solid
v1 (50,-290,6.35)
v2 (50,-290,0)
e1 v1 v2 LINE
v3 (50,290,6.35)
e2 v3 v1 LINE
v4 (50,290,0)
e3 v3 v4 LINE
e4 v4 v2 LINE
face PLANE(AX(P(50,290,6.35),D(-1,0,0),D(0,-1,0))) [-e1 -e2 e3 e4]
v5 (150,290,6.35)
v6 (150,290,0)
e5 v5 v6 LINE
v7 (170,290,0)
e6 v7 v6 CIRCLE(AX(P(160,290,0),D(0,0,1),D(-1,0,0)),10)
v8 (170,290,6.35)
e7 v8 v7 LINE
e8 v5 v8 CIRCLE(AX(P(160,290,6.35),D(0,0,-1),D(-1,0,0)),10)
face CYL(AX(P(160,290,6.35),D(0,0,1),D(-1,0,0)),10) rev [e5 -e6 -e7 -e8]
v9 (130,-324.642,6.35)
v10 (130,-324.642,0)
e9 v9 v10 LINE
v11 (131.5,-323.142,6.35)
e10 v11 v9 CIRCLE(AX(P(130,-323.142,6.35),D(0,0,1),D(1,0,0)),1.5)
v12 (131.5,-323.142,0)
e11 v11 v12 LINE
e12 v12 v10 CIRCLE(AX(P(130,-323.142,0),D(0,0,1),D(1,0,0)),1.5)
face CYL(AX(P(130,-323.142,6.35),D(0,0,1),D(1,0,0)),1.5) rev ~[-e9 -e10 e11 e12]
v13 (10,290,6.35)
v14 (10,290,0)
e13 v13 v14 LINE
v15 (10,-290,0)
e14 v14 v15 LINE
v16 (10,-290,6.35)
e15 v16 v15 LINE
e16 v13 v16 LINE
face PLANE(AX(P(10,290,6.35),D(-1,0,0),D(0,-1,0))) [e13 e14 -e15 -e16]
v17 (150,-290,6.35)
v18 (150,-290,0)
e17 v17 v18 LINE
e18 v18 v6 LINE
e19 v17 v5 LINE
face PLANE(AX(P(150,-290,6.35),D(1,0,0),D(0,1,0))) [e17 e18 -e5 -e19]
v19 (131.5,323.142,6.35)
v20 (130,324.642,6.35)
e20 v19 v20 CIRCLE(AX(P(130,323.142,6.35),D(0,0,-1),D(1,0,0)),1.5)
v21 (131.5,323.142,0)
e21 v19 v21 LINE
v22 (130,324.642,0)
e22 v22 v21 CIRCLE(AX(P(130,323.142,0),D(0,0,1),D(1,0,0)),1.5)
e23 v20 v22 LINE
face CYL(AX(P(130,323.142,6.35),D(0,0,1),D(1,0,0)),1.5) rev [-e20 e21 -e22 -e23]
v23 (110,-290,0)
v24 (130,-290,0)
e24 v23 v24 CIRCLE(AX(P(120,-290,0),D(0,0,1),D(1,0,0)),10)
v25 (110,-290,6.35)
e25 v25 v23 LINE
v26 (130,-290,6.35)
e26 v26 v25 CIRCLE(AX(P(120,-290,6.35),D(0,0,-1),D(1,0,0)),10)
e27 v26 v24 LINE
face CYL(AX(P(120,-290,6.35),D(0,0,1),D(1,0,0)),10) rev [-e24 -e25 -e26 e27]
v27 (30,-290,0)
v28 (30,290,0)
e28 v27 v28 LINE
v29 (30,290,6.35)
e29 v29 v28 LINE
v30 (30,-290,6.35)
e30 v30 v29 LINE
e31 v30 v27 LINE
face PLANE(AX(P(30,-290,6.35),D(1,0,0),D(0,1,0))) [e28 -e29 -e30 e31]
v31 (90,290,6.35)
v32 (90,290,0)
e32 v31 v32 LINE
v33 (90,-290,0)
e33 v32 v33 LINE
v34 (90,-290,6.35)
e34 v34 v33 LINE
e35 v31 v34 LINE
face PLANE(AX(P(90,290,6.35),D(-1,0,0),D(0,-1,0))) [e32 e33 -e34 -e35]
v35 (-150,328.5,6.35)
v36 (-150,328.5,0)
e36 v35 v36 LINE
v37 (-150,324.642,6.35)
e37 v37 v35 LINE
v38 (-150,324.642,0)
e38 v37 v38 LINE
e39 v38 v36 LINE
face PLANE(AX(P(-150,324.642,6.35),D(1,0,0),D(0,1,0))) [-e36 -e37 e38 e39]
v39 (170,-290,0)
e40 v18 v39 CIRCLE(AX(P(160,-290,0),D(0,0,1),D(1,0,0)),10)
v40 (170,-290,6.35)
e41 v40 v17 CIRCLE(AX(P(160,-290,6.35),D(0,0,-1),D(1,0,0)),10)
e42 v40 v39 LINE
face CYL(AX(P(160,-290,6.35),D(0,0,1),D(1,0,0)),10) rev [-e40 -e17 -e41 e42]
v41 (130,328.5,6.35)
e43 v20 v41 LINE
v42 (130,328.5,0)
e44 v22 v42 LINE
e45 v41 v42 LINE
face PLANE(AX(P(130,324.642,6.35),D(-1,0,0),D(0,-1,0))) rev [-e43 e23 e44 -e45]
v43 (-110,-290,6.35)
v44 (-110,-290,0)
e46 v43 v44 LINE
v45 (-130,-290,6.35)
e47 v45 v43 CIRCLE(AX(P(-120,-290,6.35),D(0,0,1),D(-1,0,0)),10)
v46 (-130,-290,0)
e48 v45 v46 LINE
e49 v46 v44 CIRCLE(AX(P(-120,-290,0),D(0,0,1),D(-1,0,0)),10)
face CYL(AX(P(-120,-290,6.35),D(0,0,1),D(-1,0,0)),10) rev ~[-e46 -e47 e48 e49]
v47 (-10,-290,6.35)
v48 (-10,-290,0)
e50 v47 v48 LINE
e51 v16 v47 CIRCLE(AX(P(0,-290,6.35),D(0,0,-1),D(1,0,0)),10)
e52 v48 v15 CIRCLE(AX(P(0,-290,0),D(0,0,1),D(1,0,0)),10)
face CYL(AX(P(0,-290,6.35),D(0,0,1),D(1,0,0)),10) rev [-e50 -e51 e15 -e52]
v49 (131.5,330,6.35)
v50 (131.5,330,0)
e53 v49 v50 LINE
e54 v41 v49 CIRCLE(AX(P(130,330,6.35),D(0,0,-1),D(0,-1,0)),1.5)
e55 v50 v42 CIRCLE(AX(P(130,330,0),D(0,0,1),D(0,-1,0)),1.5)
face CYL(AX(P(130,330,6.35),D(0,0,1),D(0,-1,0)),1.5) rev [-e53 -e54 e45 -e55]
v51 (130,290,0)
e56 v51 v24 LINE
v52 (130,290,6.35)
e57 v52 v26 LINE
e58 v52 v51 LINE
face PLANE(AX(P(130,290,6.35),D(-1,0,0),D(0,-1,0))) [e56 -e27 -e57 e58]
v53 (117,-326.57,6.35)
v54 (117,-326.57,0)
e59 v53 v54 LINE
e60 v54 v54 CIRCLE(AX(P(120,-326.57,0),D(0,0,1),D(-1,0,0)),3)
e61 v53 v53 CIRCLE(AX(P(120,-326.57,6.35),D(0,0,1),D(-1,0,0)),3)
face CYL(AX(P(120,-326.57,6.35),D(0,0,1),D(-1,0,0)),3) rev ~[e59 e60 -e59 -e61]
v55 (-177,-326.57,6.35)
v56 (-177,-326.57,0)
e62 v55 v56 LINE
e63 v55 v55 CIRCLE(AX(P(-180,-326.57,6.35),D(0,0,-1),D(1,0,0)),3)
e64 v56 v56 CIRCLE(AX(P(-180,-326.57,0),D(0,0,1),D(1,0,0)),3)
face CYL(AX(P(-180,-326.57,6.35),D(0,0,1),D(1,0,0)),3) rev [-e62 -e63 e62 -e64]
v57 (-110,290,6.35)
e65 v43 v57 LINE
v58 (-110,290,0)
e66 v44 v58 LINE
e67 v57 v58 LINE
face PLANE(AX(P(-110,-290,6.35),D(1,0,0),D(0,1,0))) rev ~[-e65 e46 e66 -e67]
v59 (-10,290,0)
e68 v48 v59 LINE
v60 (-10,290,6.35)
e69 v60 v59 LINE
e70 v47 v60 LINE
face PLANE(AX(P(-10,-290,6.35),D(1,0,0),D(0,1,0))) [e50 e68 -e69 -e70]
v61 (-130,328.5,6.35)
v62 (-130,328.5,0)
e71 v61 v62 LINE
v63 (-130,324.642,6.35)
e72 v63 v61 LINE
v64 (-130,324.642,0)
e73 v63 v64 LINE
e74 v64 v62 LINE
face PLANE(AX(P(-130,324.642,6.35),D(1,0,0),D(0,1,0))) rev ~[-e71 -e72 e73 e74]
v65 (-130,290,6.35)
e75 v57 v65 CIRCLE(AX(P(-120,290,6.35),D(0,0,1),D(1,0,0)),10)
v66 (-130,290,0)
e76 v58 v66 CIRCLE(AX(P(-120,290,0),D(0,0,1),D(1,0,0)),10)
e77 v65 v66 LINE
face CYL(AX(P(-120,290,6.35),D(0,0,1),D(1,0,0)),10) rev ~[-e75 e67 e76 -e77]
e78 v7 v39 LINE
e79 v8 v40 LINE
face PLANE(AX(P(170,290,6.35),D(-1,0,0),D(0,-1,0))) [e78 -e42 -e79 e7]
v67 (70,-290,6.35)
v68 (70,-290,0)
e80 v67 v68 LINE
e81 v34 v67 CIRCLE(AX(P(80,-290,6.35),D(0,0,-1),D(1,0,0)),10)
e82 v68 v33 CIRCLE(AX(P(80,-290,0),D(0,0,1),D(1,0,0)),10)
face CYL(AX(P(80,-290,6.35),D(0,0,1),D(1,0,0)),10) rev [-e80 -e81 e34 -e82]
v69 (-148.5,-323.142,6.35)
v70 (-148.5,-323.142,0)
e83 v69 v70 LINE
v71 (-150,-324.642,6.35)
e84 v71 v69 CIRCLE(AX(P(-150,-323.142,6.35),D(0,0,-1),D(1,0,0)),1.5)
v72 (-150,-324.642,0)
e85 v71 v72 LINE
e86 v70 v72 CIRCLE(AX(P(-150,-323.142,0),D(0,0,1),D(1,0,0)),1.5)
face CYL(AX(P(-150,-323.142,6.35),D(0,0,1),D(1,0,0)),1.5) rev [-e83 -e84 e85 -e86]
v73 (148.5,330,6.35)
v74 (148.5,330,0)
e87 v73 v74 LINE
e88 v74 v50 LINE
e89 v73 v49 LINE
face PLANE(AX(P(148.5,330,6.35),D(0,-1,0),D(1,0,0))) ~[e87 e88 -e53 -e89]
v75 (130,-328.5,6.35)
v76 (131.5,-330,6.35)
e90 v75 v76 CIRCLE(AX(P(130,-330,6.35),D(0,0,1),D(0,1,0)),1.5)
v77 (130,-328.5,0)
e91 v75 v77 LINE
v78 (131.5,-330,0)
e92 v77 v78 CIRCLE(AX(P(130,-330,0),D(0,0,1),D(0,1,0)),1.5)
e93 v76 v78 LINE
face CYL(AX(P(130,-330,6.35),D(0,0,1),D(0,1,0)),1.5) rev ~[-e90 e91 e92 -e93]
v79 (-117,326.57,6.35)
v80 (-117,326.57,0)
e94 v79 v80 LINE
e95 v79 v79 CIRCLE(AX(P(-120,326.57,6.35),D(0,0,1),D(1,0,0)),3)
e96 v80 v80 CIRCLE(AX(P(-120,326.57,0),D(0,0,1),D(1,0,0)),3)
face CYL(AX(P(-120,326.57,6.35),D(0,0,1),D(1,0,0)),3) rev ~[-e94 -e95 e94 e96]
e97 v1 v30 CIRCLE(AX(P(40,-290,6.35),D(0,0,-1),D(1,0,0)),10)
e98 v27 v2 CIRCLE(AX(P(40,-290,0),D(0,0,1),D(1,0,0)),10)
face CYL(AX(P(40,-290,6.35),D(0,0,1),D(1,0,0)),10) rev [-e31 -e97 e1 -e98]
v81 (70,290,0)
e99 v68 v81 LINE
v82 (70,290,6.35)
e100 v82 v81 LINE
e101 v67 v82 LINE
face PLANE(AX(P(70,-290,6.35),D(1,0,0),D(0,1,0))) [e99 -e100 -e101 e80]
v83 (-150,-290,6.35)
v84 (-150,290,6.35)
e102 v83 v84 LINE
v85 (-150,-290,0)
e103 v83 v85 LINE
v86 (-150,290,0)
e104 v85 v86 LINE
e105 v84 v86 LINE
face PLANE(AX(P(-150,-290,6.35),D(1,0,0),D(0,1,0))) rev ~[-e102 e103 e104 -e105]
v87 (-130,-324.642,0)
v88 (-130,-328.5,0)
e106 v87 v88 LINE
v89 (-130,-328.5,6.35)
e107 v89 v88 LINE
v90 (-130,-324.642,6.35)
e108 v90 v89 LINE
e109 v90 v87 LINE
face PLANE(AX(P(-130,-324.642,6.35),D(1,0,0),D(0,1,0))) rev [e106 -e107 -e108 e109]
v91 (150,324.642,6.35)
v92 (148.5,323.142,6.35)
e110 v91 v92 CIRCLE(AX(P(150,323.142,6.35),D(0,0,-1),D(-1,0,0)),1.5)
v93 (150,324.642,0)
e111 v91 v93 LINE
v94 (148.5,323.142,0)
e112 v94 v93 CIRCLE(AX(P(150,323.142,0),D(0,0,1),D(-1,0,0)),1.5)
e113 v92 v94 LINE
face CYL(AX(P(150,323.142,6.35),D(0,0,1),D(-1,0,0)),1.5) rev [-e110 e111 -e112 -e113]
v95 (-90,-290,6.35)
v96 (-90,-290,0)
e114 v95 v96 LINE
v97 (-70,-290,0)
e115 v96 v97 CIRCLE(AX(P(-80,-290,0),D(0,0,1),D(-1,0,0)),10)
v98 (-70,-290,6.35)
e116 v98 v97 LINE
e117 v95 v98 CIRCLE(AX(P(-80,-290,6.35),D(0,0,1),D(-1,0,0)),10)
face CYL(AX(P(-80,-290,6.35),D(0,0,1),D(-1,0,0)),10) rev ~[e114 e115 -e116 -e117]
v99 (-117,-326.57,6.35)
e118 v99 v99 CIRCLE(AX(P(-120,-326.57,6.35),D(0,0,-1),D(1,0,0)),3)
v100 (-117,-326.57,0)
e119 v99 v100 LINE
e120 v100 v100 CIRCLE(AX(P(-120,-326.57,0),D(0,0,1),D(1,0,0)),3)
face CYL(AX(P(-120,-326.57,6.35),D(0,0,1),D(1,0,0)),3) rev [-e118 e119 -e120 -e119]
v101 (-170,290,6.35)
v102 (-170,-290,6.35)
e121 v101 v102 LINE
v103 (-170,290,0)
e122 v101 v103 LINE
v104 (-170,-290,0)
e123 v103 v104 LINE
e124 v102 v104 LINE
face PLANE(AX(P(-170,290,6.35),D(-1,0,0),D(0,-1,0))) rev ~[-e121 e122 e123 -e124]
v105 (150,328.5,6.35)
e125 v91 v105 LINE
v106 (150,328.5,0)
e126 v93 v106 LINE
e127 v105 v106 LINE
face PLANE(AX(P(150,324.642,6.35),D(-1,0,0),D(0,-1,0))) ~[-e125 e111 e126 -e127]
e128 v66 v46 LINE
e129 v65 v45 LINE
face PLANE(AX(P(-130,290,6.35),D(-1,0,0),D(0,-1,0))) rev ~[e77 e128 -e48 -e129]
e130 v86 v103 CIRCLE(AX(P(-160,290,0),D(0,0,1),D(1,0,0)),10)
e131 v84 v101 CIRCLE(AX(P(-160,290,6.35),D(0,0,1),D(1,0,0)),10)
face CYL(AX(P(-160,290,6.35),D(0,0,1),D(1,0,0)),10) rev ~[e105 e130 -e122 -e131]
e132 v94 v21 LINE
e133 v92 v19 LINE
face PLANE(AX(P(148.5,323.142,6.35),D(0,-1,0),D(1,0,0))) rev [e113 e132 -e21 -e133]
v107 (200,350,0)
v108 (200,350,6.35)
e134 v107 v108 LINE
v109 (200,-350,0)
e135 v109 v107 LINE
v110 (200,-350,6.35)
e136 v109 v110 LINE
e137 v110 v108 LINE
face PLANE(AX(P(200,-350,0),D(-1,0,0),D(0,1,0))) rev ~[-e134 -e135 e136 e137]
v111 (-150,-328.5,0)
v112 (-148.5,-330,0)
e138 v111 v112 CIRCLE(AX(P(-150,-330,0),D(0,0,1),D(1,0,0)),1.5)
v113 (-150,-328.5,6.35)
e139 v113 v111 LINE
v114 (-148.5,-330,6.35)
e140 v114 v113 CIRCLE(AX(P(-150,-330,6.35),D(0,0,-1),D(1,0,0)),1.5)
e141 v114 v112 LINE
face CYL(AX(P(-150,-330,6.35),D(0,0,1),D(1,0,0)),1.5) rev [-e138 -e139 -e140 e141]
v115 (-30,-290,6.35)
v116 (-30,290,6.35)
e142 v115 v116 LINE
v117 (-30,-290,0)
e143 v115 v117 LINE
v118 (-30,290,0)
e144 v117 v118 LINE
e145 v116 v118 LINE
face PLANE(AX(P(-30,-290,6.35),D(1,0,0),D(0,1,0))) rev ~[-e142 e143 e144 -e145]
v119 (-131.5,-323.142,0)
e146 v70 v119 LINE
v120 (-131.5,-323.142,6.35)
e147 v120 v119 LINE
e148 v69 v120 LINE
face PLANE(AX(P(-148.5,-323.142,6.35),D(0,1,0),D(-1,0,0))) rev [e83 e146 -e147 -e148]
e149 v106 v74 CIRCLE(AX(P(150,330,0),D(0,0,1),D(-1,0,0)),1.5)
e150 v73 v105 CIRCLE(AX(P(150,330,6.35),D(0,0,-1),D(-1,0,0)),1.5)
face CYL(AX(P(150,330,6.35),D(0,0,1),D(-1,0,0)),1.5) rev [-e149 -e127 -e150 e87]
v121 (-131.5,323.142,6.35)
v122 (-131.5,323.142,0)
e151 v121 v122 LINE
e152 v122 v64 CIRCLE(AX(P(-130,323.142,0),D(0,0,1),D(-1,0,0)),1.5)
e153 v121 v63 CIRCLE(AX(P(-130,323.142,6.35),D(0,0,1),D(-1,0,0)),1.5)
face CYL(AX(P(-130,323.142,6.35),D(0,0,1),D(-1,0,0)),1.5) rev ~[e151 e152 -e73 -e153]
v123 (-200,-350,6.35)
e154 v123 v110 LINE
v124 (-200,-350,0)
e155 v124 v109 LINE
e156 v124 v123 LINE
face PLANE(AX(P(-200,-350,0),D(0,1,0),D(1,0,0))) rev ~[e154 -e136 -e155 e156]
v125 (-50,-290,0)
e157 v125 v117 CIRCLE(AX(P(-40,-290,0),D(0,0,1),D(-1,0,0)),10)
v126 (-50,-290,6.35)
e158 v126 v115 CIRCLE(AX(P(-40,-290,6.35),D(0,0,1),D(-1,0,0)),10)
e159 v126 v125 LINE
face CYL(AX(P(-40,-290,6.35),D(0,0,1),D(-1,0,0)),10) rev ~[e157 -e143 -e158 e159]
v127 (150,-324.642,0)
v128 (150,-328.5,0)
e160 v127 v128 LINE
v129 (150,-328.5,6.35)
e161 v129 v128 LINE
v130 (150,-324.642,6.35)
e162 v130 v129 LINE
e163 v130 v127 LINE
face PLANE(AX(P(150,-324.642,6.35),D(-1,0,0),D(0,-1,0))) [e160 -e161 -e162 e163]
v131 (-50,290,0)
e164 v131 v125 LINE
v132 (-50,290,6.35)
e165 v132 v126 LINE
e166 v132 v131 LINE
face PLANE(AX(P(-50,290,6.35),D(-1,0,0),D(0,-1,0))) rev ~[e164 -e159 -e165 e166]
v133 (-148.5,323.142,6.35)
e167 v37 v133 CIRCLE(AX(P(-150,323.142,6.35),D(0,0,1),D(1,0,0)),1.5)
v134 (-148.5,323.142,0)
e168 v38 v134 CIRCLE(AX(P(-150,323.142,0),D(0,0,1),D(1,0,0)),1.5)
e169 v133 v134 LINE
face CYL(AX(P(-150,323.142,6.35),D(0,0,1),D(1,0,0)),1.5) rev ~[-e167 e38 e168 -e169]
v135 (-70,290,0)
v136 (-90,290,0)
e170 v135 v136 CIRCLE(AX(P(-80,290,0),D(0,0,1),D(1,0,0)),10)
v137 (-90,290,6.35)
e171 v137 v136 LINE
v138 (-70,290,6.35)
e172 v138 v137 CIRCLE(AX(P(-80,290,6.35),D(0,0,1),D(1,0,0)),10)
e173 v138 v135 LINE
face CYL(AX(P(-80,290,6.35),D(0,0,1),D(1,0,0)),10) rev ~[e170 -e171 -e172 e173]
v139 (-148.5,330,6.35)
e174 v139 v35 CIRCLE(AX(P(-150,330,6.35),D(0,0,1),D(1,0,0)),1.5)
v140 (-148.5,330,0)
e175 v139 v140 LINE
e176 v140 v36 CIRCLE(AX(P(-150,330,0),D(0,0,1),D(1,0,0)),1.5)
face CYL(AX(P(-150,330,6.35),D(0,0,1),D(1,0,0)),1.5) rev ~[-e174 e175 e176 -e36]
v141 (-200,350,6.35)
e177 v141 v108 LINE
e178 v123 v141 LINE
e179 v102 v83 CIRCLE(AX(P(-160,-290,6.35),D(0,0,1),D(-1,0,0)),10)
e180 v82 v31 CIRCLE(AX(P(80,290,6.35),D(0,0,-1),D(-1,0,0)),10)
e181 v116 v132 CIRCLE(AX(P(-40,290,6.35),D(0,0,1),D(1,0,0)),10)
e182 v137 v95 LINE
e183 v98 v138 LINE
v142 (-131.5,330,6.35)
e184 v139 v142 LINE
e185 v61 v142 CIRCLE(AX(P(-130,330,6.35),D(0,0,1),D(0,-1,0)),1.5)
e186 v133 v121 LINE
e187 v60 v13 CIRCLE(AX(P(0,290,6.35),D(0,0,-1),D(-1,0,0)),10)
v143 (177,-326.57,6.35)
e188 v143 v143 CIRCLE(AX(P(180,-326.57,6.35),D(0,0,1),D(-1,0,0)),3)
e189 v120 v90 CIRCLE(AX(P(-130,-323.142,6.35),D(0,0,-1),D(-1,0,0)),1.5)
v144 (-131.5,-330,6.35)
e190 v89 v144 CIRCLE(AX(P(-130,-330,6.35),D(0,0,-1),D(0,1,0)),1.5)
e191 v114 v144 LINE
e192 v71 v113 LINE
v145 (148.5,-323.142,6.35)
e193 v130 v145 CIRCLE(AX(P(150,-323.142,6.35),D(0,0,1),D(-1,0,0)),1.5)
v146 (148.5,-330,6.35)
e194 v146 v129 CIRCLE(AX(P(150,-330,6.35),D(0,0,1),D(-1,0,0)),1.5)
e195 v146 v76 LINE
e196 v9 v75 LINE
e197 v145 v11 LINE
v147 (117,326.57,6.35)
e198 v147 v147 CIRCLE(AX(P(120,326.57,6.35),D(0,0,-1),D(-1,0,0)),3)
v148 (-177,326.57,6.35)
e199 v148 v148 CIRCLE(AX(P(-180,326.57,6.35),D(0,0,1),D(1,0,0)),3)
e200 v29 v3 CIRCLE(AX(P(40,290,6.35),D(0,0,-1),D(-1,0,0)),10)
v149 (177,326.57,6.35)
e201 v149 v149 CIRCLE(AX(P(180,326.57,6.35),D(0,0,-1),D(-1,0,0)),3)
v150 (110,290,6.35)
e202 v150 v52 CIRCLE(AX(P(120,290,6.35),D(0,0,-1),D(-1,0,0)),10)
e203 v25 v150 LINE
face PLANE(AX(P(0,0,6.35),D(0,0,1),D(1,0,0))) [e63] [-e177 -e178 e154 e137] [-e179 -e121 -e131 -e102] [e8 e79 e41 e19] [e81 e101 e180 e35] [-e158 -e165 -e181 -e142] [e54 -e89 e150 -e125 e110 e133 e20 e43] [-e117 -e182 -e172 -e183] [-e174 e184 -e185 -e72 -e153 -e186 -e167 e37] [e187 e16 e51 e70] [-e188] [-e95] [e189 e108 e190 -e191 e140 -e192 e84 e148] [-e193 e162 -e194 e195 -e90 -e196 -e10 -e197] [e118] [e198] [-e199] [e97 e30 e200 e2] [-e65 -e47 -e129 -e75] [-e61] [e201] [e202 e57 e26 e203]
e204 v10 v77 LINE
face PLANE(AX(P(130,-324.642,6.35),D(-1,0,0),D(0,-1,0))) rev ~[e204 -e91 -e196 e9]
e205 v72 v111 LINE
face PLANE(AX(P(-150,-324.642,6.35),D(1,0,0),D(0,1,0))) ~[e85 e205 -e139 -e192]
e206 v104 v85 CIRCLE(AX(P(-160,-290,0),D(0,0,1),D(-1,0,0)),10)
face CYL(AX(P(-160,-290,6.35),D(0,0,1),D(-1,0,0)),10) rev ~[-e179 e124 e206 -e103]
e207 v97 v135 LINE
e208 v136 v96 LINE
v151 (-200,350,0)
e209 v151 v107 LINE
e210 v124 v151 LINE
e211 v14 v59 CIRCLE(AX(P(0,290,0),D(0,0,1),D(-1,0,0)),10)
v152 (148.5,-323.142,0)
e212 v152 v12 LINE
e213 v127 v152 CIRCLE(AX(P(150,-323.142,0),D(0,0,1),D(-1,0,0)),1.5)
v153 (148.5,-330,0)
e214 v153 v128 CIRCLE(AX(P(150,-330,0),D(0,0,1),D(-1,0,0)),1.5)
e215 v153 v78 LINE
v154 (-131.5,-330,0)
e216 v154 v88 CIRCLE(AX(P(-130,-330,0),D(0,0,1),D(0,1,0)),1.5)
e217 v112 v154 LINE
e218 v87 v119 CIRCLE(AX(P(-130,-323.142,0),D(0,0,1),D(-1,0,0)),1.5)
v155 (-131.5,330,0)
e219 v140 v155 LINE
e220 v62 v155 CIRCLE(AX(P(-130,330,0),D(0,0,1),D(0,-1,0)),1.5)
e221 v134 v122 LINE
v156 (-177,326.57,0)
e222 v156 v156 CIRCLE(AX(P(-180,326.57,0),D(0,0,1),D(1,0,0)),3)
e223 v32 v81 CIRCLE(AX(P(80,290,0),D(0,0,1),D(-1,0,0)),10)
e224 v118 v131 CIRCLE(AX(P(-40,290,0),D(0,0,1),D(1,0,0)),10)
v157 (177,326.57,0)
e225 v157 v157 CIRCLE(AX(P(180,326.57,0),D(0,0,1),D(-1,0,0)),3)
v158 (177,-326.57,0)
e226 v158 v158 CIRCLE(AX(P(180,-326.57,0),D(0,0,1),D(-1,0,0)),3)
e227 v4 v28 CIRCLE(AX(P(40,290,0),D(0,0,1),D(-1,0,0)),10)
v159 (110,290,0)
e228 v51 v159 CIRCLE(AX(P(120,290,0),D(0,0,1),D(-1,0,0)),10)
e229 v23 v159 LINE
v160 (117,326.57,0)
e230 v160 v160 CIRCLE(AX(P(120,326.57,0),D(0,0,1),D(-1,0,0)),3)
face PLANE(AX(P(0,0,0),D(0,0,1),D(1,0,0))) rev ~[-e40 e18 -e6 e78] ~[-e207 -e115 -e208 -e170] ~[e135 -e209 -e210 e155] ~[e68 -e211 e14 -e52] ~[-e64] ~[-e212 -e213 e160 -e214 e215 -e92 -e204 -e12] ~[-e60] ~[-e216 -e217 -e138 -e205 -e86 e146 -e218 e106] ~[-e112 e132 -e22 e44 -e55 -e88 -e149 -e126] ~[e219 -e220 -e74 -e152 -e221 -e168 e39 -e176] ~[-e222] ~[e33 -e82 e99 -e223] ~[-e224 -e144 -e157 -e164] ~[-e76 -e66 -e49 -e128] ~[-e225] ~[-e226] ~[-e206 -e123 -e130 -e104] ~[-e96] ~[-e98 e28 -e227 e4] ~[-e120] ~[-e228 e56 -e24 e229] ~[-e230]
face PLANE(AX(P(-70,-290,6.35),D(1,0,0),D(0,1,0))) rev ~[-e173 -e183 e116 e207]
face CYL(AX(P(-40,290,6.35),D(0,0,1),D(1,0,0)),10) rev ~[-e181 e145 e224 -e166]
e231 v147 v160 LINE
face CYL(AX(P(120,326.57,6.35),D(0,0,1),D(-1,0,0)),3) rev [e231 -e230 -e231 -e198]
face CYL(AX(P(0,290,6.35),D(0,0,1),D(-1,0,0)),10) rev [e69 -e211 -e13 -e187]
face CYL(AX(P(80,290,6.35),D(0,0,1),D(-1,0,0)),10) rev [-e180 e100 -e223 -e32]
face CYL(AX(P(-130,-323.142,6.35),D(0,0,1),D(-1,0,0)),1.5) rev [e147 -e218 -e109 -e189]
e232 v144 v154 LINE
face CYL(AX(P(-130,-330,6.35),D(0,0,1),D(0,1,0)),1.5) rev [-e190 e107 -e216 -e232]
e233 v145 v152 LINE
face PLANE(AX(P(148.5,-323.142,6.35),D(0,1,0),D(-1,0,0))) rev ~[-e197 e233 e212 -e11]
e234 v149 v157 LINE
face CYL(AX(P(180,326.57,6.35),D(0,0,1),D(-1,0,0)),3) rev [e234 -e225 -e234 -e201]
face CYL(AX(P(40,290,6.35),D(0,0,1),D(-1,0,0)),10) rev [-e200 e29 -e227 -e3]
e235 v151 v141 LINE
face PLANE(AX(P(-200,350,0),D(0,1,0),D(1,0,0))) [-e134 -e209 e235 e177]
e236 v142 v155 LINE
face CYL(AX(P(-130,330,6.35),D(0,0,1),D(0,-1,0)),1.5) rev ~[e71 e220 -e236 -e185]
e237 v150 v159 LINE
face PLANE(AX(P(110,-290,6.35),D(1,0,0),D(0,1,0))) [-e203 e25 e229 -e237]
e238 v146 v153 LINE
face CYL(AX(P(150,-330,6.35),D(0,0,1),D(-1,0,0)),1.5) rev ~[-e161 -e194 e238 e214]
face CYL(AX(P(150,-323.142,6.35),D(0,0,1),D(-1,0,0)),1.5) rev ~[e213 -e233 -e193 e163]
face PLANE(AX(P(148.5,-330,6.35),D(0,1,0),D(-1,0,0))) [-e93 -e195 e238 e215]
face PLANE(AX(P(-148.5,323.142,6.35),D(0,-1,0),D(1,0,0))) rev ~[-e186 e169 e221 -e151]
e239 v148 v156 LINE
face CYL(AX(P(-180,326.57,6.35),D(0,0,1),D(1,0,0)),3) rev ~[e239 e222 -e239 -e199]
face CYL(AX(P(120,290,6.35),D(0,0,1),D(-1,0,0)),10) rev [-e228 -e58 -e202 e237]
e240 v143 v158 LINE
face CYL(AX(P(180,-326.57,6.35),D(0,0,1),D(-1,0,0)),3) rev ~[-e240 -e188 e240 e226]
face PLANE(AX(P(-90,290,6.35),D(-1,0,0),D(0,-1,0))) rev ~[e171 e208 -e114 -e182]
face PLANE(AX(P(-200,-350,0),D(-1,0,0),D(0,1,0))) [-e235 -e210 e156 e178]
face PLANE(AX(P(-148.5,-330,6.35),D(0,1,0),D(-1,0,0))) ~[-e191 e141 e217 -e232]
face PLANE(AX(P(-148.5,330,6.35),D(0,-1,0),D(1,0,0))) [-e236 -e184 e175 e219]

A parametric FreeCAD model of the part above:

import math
import FreeCAD as App
import Part
import Sketcher


def add_polygon(sketch, points):
    """Adds a closed chain of lines whose ends are joined by coincident constraints."""
    first, n = sketch.GeometryCount, len(points)
    for a, b in zip(points, points[1:] + points[:1]):
        sketch.addGeometry(Part.LineSegment(App.Vector(*a, 0), App.Vector(*b, 0)), False)
    for i in range(n):
        sketch.addConstraint(Sketcher.Constraint("Coincident", first + i, 2, first + (i + 1) % n, 1))

doc = App.newDocument("Part")
body = doc.addObject("PartDesign::Body", "Body")

# Sketch on XY plane
sketch1 = body.newObject("Sketcher::SketchObject", "Sketch")
sketch1.AttachmentSupport = (doc.getObject("XY_Plane"), [""])
sketch1.MapMode = "FlatFace"
add_polygon(sketch1, [(-200, 350), (-200, -350), (200, -350), (200, 350)])  # lines 0-3
sketch1.addConstraint([
    Sketcher.Constraint("Vertical", 0),
    Sketcher.Constraint("Horizontal", 1),
    Sketcher.Constraint("Vertical", 2),
    Sketcher.Constraint("Horizontal", 3),
    Sketcher.Constraint("Symmetric", 0, 2, 2, 2, -1, 1),
    Sketcher.Constraint("DistanceX", 1, 1, 1, 2, 400.0),
    Sketcher.Constraint("DistanceY", 0, 2, 0, 1, 700.0),
])
pad1 = body.newObject("PartDesign::Pad", "Pad")
pad1.Profile = sketch1
pad1.Length = 6.35

# Sketch on XY plane
sketch2 = body.newObject("Sketcher::SketchObject", "Sketch001")
sketch2.AttachmentSupport = (doc.getObject("XY_Plane"), [""])
sketch2.MapMode = "FlatFace"
sketch2.AttachmentOffset = App.Placement(App.Vector(0, 0, 6.35), App.Rotation())
sketch2.addGeometry([
    Part.LineSegment(App.Vector(-150, 328.5, 0), App.Vector(-150, 324.6, 0)),  # 0
    Part.ArcOfCircle(Part.Circle(App.Vector(-150, 323.1, 0), App.Vector(0, 0, 1), 1.5), math.radians(90), math.radians(360)),  # 1
    Part.LineSegment(App.Vector(-148.5, 323.1, 0), App.Vector(-131.5, 323.1, 0)),  # 2
    Part.ArcOfCircle(Part.Circle(App.Vector(-130, 323.1, 0), App.Vector(0, 0, 1), 1.5), math.radians(180), math.radians(450)),  # 3
    Part.LineSegment(App.Vector(-130, 324.6, 0), App.Vector(-130, 328.5, 0)),  # 4
    Part.ArcOfCircle(Part.Circle(App.Vector(-130, 330, 0), App.Vector(0, 0, 1), 1.5), math.radians(-90), math.radians(180)),  # 5
    Part.LineSegment(App.Vector(-131.5, 330, 0), App.Vector(-148.5, 330, 0)),  # 6
    Part.ArcOfCircle(Part.Circle(App.Vector(-150, 330, 0), App.Vector(0, 0, 1), 1.5), math.radians(0), math.radians(270)),  # 7
    Part.Circle(App.Vector(-180, 326.6, 0), App.Vector(0, 0, 1), 3),  # 8
    Part.Circle(App.Vector(-120, 326.6, 0), App.Vector(0, 0, 1), 3),  # 9
], False)
sketch2.addConstraint([
    Sketcher.Constraint("Coincident", 0, 2, 1, 1),
    Sketcher.Constraint("Coincident", 1, 2, 2, 1),
    Sketcher.Constraint("Coincident", 2, 2, 3, 1),
    Sketcher.Constraint("Coincident", 3, 2, 4, 1),
    Sketcher.Constraint("Coincident", 4, 2, 5, 1),
    Sketcher.Constraint("Coincident", 5, 2, 6, 1),
    Sketcher.Constraint("Coincident", 6, 2, 7, 1),
    Sketcher.Constraint("Coincident", 7, 2, 0, 1),
    Sketcher.Constraint("Vertical", 0),
    Sketcher.Constraint("Horizontal", 2),
    Sketcher.Constraint("Vertical", 4),
    Sketcher.Constraint("Horizontal", 6),
    Sketcher.Constraint("Equal", 1, 3),
    Sketcher.Constraint("Equal", 3, 5),
    Sketcher.Constraint("Equal", 5, 7),
    Sketcher.Constraint("Equal", 8, 9),
    Sketcher.Constraint("Horizontal", 1, 3, 3, 3),
    Sketcher.Constraint("Horizontal", 5, 3, 7, 3),
    Sketcher.Constraint("Horizontal", 8, 3, 9, 3),
    Sketcher.Constraint("Horizontal", 3, 3, 1, 2),
    Sketcher.Constraint("Horizontal", 7, 3, 5, 2),
    Sketcher.Constraint("Vertical", 3, 3, 5, 3),
    Sketcher.Constraint("Vertical", 1, 3, 7, 3),
    Sketcher.Constraint("Vertical", 7, 3, 0, 2),
    Sketcher.Constraint("Vertical", 5, 3, 3, 2),
    Sketcher.Constraint("Diameter", 8, 6.0),
    Sketcher.Constraint("Radius", 1, 1.5),
    Sketcher.Constraint("DistanceX", 2, 1, 2, 2, 17.0),
    Sketcher.Constraint("DistanceX", 1, 3, -1, 1, 150.0),
    Sketcher.Constraint("DistanceY", -1, 1, 5, 3, 330.0),
    Sketcher.Constraint("DistanceX", 8, 3, -1, 1, 180.0),
    Sketcher.Constraint("DistanceX", 9, 3, -1, 1, 120.0),
    Sketcher.Constraint("DistanceY", 0, 2, 0, 1, 3.858),
    Sketcher.Constraint("DistanceY", -1, 1, 8, 3, 326.57),
])
pocket1 = body.newObject("PartDesign::Pocket", "Pocket")
pocket1.Profile = sketch2
pocket1.Type = "ThroughAll"
doc.recompute()

mirrored = body.newObject("PartDesign::Mirrored", "Mirrored")
mirrored.Originals = [pocket1]
mirrored.MirrorPlane = (doc.getObject("XZ_Plane"), [""])
body.Tip = mirrored
doc.recompute()

mirrored2 = body.newObject("PartDesign::Mirrored", "Mirrored001")
mirrored2.Originals = [pocket1]
mirrored2.MirrorPlane = (doc.getObject("YZ_Plane"), [""])
body.Tip = mirrored2

# Sketch on XY plane
sketch3 = body.newObject("Sketcher::SketchObject", "Sketch002")
sketch3.AttachmentSupport = (doc.getObject("XY_Plane"), [""])
sketch3.MapMode = "FlatFace"
sketch3.AttachmentOffset = App.Placement(App.Vector(0, 0, 6.35), App.Rotation())
sketch3.addGeometry([
    Part.LineSegment(App.Vector(150, -328.5, 0), App.Vector(150, -324.6, 0)),  # 0
    Part.ArcOfCircle(Part.Circle(App.Vector(150, -323.1, 0), App.Vector(0, 0, 1), 1.5), math.radians(-90), math.radians(180)),  # 1
    Part.LineSegment(App.Vector(148.5, -323.1, 0), App.Vector(131.5, -323.1, 0)),  # 2
    Part.ArcOfCircle(Part.Circle(App.Vector(130, -323.1, 0), App.Vector(0, 0, 1), 1.5), math.radians(0), math.radians(270)),  # 3
    Part.LineSegment(App.Vector(130, -324.6, 0), App.Vector(130, -328.5, 0)),  # 4
    Part.ArcOfCircle(Part.Circle(App.Vector(130, -330, 0), App.Vector(0, 0, 1), 1.5), math.radians(90), math.radians(360)),  # 5
    Part.LineSegment(App.Vector(131.5, -330, 0), App.Vector(148.5, -330, 0)),  # 6
    Part.ArcOfCircle(Part.Circle(App.Vector(150, -330, 0), App.Vector(0, 0, 1), 1.5), math.radians(180), math.radians(450)),  # 7
    Part.Circle(App.Vector(180, -326.6, 0), App.Vector(0, 0, 1), 3),  # 8
    Part.Circle(App.Vector(120, -326.6, 0), App.Vector(0, 0, 1), 3),  # 9
], False)
sketch3.addConstraint([
    Sketcher.Constraint("Coincident", 0, 2, 1, 1),
    Sketcher.Constraint("Coincident", 1, 2, 2, 1),
    Sketcher.Constraint("Coincident", 2, 2, 3, 1),
    Sketcher.Constraint("Coincident", 3, 2, 4, 1),
    Sketcher.Constraint("Coincident", 4, 2, 5, 1),
    Sketcher.Constraint("Coincident", 5, 2, 6, 1),
    Sketcher.Constraint("Coincident", 6, 2, 7, 1),
    Sketcher.Constraint("Coincident", 7, 2, 0, 1),
    Sketcher.Constraint("Vertical", 0),
    Sketcher.Constraint("Horizontal", 2),
    Sketcher.Constraint("Vertical", 4),
    Sketcher.Constraint("Horizontal", 6),
    Sketcher.Constraint("Equal", 1, 3),
    Sketcher.Constraint("Equal", 3, 5),
    Sketcher.Constraint("Equal", 5, 7),
    Sketcher.Constraint("Equal", 8, 9),
    Sketcher.Constraint("Horizontal", 1, 3, 3, 3),
    Sketcher.Constraint("Horizontal", 5, 3, 7, 3),
    Sketcher.Constraint("Horizontal", 8, 3, 9, 3),
    Sketcher.Constraint("Horizontal", 3, 3, 1, 2),
    Sketcher.Constraint("Horizontal", 7, 3, 5, 2),
    Sketcher.Constraint("Vertical", 3, 3, 5, 3),
    Sketcher.Constraint("Vertical", 1, 3, 7, 3),
    Sketcher.Constraint("Vertical", 7, 3, 0, 2),
    Sketcher.Constraint("Vertical", 5, 3, 3, 2),
    Sketcher.Constraint("Diameter", 8, 6.0),
    Sketcher.Constraint("Radius", 1, 1.5),
    Sketcher.Constraint("DistanceX", 2, 2, 2, 1, 17.0),
    Sketcher.Constraint("DistanceX", -1, 1, 1, 3, 150.0),
    Sketcher.Constraint("DistanceY", 5, 3, -1, 1, 330.0),
    Sketcher.Constraint("DistanceX", -1, 1, 8, 3, 180.0),
    Sketcher.Constraint("DistanceX", -1, 1, 9, 3, 120.0),
    Sketcher.Constraint("DistanceY", 0, 1, 0, 2, 3.858),
    Sketcher.Constraint("DistanceY", 8, 3, -1, 1, 326.57),
])
pocket2 = body.newObject("PartDesign::Pocket", "Pocket001")
pocket2.Profile = sketch3
pocket2.Type = "ThroughAll"

# Sketch on XY plane
sketch4 = body.newObject("Sketcher::SketchObject", "Sketch003")
sketch4.AttachmentSupport = (doc.getObject("XY_Plane"), [""])
sketch4.MapMode = "FlatFace"
sketch4.AttachmentOffset = App.Placement(App.Vector(0, 0, 6.35), App.Rotation())
sketch4.addGeometry([
    Part.LineSegment(App.Vector(10, -290, 0), App.Vector(10, 290, 0)),
    Part.ArcOfCircle(Part.Circle(App.Vector(0, 290, 0), App.Vector(0, 0, 1), 10), math.radians(0), math.radians(180)),
    Part.LineSegment(App.Vector(-10, 290, 0), App.Vector(-10, -290, 0)),
    Part.ArcOfCircle(Part.Circle(App.Vector(0, -290, 0), App.Vector(0, 0, 1), 10), math.radians(180), math.radians(360)),
], False)
sketch4.addConstraint([
    Sketcher.Constraint("Tangent", 0, 2, 1, 1),
    Sketcher.Constraint("Tangent", 1, 2, 2, 1),
    Sketcher.Constraint("Tangent", 2, 2, 3, 1),
    Sketcher.Constraint("Tangent", 3, 2, 0, 1),
    Sketcher.Constraint("Vertical", 0),
    Sketcher.Constraint("Vertical", 2),
    Sketcher.Constraint("Symmetric", 1, 3, 3, 3, -1, 1),
    Sketcher.Constraint("Radius", 1, 10.0),
    Sketcher.Constraint("DistanceY", 0, 1, 0, 2, 580.0),
])
pocket3 = body.newObject("PartDesign::Pocket", "Pocket002")
pocket3.Profile = sketch4
pocket3.Type = "ThroughAll"
doc.recompute()

linearpattern = body.newObject("PartDesign::LinearPattern", "LinearPattern")
linearpattern.Originals = [pocket3]
linearpattern.Direction = (doc.getObject("X_Axis"), [""])
linearpattern.Mode = "offset"
linearpattern.Offset = 40
linearpattern.Occurrences = 5
body.Tip = linearpattern

# Sketch on XY plane
sketch5 = body.newObject("Sketcher::SketchObject", "Sketch004")
sketch5.AttachmentSupport = (doc.getObject("XY_Plane"), [""])
sketch5.MapMode = "FlatFace"
sketch5.AttachmentOffset = App.Placement(App.Vector(0, 0, 6.35), App.Rotation())
sketch5.addGeometry([
    Part.LineSegment(App.Vector(-50, 290, 0), App.Vector(-50, -290, 0)),
    Part.ArcOfCircle(Part.Circle(App.Vector(-40, -290, 0), App.Vector(0, 0, 1), 10), math.radians(180), math.radians(360)),
    Part.LineSegment(App.Vector(-30, -290, 0), App.Vector(-30, 290, 0)),
    Part.ArcOfCircle(Part.Circle(App.Vector(-40, 290, 0), App.Vector(0, 0, 1), 10), math.radians(0), math.radians(180)),
], False)
sketch5.addConstraint([
    Sketcher.Constraint("Tangent", 0, 2, 1, 1),
    Sketcher.Constraint("Tangent", 1, 2, 2, 1),
    Sketcher.Constraint("Tangent", 2, 2, 3, 1),
    Sketcher.Constraint("Tangent", 3, 2, 0, 1),
    Sketcher.Constraint("Vertical", 0),
    Sketcher.Constraint("Vertical", 2),
    Sketcher.Constraint("Radius", 1, 10.0),
    Sketcher.Constraint("DistanceY", 0, 2, 0, 1, 580.0),
    Sketcher.Constraint("DistanceX", 1, 3, -1, 1, 40.0),
    Sketcher.Constraint("DistanceY", 1, 3, -1, 1, 290.0),
])
pocket4 = body.newObject("PartDesign::Pocket", "Pocket003")
pocket4.Profile = sketch5
pocket4.Type = "ThroughAll"

# Sketch on XY plane
sketch6 = body.newObject("Sketcher::SketchObject", "Sketch005")
sketch6.AttachmentSupport = (doc.getObject("XY_Plane"), [""])
sketch6.MapMode = "FlatFace"
sketch6.AttachmentOffset = App.Placement(App.Vector(0, 0, 6.35), App.Rotation())
sketch6.addGeometry([
    Part.LineSegment(App.Vector(-90, 290, 0), App.Vector(-90, -290, 0)),
    Part.ArcOfCircle(Part.Circle(App.Vector(-80, -290, 0), App.Vector(0, 0, 1), 10), math.radians(180), math.radians(360)),
    Part.LineSegment(App.Vector(-70, -290, 0), App.Vector(-70, 290, 0)),
    Part.ArcOfCircle(Part.Circle(App.Vector(-80, 290, 0), App.Vector(0, 0, 1), 10), math.radians(0), math.radians(180)),
], False)
sketch6.addConstraint([
    Sketcher.Constraint("Tangent", 0, 2, 1, 1),
    Sketcher.Constraint("Tangent", 1, 2, 2, 1),
    Sketcher.Constraint("Tangent", 2, 2, 3, 1),
    Sketcher.Constraint("Tangent", 3, 2, 0, 1),
    Sketcher.Constraint("Vertical", 0),
    Sketcher.Constraint("Vertical", 2),
    Sketcher.Constraint("Radius", 1, 10.0),
    Sketcher.Constraint("DistanceY", 0, 2, 0, 1, 580.0),
    Sketcher.Constraint("DistanceX", 1, 3, -1, 1, 80.0),
    Sketcher.Constraint("DistanceY", 1, 3, -1, 1, 290.0),
])
pocket5 = body.newObject("PartDesign::Pocket", "Pocket004")
pocket5.Profile = sketch6
pocket5.Type = "ThroughAll"

# Sketch on XY plane
sketch7 = body.newObject("Sketcher::SketchObject", "Sketch006")
sketch7.AttachmentSupport = (doc.getObject("XY_Plane"), [""])
sketch7.MapMode = "FlatFace"
sketch7.AttachmentOffset = App.Placement(App.Vector(0, 0, 6.35), App.Rotation())
sketch7.addGeometry([
    Part.LineSegment(App.Vector(-130, 290, 0), App.Vector(-130, -290, 0)),
    Part.ArcOfCircle(Part.Circle(App.Vector(-120, -290, 0), App.Vector(0, 0, 1), 10), math.radians(180), math.radians(360)),
    Part.LineSegment(App.Vector(-110, -290, 0), App.Vector(-110, 290, 0)),
    Part.ArcOfCircle(Part.Circle(App.Vector(-120, 290, 0), App.Vector(0, 0, 1), 10), math.radians(0), math.radians(180)),
], False)
sketch7.addConstraint([
    Sketcher.Constraint("Tangent", 0, 2, 1, 1),
    Sketcher.Constraint("Tangent", 1, 2, 2, 1),
    Sketcher.Constraint("Tangent", 2, 2, 3, 1),
    Sketcher.Constraint("Tangent", 3, 2, 0, 1),
    Sketcher.Constraint("Vertical", 0),
    Sketcher.Constraint("Vertical", 2),
    Sketcher.Constraint("Radius", 1, 10.0),
    Sketcher.Constraint("DistanceY", 0, 2, 0, 1, 580.0),
    Sketcher.Constraint("DistanceX", 1, 3, -1, 1, 120.0),
    Sketcher.Constraint("DistanceY", 1, 3, -1, 1, 290.0),
])
pocket6 = body.newObject("PartDesign::Pocket", "Pocket005")
pocket6.Profile = sketch7
pocket6.Type = "ThroughAll"

# Sketch on XY plane
sketch8 = body.newObject("Sketcher::SketchObject", "Sketch007")
sketch8.AttachmentSupport = (doc.getObject("XY_Plane"), [""])
sketch8.MapMode = "FlatFace"
sketch8.AttachmentOffset = App.Placement(App.Vector(0, 0, 6.35), App.Rotation())
sketch8.addGeometry([
    Part.LineSegment(App.Vector(-170, 290, 0), App.Vector(-170, -290, 0)),
    Part.ArcOfCircle(Part.Circle(App.Vector(-160, -290, 0), App.Vector(0, 0, 1), 10), math.radians(180), math.radians(360)),
    Part.LineSegment(App.Vector(-150, -290, 0), App.Vector(-150, 290, 0)),
    Part.ArcOfCircle(Part.Circle(App.Vector(-160, 290, 0), App.Vector(0, 0, 1), 10), math.radians(0), math.radians(180)),
], False)
sketch8.addConstraint([
    Sketcher.Constraint("Tangent", 0, 2, 1, 1),
    Sketcher.Constraint("Tangent", 1, 2, 2, 1),
    Sketcher.Constraint("Tangent", 2, 2, 3, 1),
    Sketcher.Constraint("Tangent", 3, 2, 0, 1),
    Sketcher.Constraint("Vertical", 0),
    Sketcher.Constraint("Vertical", 2),
    Sketcher.Constraint("Radius", 1, 10.0),
    Sketcher.Constraint("DistanceY", 0, 2, 0, 1, 580.0),
    Sketcher.Constraint("DistanceX", 1, 3, -1, 1, 160.0),
    Sketcher.Constraint("DistanceY", 1, 3, -1, 1, 290.0),
])
pocket7 = body.newObject("PartDesign::Pocket", "Pocket006")
pocket7.Profile = sketch8
pocket7.Type = "ThroughAll"

# Sketch on XY plane
sketch9 = body.newObject("Sketcher::SketchObject", "Sketch008")
sketch9.AttachmentSupport = (doc.getObject("XY_Plane"), [""])
sketch9.MapMode = "FlatFace"
sketch9.AttachmentOffset = App.Placement(App.Vector(0, 0, 6.35), App.Rotation())
sketch9.addGeometry([
    Part.LineSegment(App.Vector(-10, 290, 0), App.Vector(-10, -290, 0)),
    Part.ArcOfCircle(Part.Circle(App.Vector(0, -290, 0), App.Vector(0, 0, 1), 10), math.radians(180), math.radians(360)),
    Part.LineSegment(App.Vector(10, -290, 0), App.Vector(10, 290, 0)),
    Part.ArcOfCircle(Part.Circle(App.Vector(0, 290, 0), App.Vector(0, 0, 1), 10), math.radians(0), math.radians(180)),
], False)
sketch9.addConstraint([
    Sketcher.Constraint("Tangent", 0, 2, 1, 1),
    Sketcher.Constraint("Tangent", 1, 2, 2, 1),
    Sketcher.Constraint("Tangent", 2, 2, 3, 1),
    Sketcher.Constraint("Tangent", 3, 2, 0, 1),
    Sketcher.Constraint("Vertical", 0),
    Sketcher.Constraint("Vertical", 2),
    Sketcher.Constraint("Symmetric", 1, 3, 3, 3, -1, 1),
    Sketcher.Constraint("Radius", 1, 10.0),
    Sketcher.Constraint("DistanceY", 0, 2, 0, 1, 580.0),
])
pocket8 = body.newObject("PartDesign::Pocket", "Pocket007")
pocket8.Profile = sketch9
pocket8.Type = "ThroughAll"

doc.recompute()
